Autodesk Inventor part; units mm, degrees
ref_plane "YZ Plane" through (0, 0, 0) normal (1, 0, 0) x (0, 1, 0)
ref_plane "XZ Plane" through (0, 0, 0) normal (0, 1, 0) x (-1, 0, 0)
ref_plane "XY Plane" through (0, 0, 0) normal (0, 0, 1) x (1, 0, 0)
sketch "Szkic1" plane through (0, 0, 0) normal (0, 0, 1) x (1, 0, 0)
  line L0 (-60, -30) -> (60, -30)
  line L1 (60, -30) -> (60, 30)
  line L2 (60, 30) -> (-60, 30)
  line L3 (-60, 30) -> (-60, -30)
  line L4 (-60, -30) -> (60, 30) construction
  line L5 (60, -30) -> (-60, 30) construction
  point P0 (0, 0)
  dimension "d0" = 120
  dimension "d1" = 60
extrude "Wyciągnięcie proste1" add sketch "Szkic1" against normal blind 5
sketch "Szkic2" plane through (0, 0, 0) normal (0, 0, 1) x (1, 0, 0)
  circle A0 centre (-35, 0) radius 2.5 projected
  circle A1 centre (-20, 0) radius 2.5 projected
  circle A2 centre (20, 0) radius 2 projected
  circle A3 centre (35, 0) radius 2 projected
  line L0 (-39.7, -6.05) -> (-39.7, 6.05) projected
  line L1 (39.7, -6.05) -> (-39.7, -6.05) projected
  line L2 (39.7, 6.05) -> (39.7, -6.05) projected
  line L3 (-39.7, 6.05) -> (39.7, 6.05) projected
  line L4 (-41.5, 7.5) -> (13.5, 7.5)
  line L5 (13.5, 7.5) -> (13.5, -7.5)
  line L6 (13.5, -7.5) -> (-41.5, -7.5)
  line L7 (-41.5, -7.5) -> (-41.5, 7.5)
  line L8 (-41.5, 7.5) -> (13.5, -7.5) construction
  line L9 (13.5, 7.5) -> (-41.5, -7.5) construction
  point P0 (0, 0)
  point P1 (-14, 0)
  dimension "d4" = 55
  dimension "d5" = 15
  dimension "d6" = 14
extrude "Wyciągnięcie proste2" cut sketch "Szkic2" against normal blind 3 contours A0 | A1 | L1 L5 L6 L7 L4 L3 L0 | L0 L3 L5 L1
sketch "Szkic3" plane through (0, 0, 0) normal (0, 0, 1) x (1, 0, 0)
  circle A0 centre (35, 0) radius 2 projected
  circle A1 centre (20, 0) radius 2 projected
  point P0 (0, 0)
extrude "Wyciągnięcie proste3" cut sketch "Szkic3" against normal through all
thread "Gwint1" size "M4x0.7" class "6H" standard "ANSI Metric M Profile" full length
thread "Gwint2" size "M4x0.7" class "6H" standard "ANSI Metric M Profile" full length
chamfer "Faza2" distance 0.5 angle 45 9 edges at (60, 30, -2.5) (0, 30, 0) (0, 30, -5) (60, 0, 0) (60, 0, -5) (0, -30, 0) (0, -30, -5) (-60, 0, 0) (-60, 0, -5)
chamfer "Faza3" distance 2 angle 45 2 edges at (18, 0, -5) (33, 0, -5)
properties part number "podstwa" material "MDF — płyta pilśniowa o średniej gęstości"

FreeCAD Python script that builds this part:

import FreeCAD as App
import Part
import Sketcher

V = App.Vector
Q = App.Units.Quantity


def edges_at(feature, points):
    """Names of the edges that pass closest to the given points."""
    edges = feature.Shape.Edges
    near = lambda p: min(range(len(edges)), key=lambda i: edges[i].distToShape(Part.Vertex(*p))[0])
    return sorted({f"Edge{near(p) + 1}" for p in points})

doc = App.newDocument("Part")
body = doc.addObject("PartDesign::Body", "Body")

# Sketch on XY plane
sketch1 = body.newObject("Sketcher::SketchObject", "Sketch")
sketch1.AttachmentSupport = (doc.getObject("XY_Plane"), [""])
sketch1.MapMode = "FlatFace"
sketch1.addGeometry([
    Part.LineSegment(V(-60, 30, 0), V(-60, -30, 0)),
    Part.LineSegment(V(-60, -30, 0), V(60, -30, 0)),
    Part.LineSegment(V(60, -30, 0), V(60, 30, 0)),
    Part.LineSegment(V(60, 30, 0), V(-60, 30, 0)),
], False)
sketch1.addConstraint([
    Sketcher.Constraint("Coincident", 0, 2, 1, 1),
    Sketcher.Constraint("Coincident", 1, 2, 2, 1),
    Sketcher.Constraint("Coincident", 2, 2, 3, 1),
    Sketcher.Constraint("Coincident", 3, 2, 0, 1),
    Sketcher.Constraint("Vertical", 0),
    Sketcher.Constraint("Horizontal", 1),
    Sketcher.Constraint("Vertical", 2),
    Sketcher.Constraint("Horizontal", 3),
    Sketcher.Constraint("Symmetric", 0, 2, 2, 2, -1, 1),
    Sketcher.Constraint("DistanceX", 1, 1, 1, 2, Q("120 mm")),
    Sketcher.Constraint("DistanceY", 0, 2, 0, 1, Q("60 mm")),
])
pad1 = body.newObject("PartDesign::Pad", "Pad")
pad1.Profile = sketch1
pad1.Length = 5
pad1.Reversed = True

# Sketch on XY plane
sketch2 = body.newObject("Sketcher::SketchObject", "Sketch001")
sketch2.AttachmentSupport = (doc.getObject("XY_Plane"), [""])
sketch2.MapMode = "FlatFace"
sketch2.addGeometry([
    Part.LineSegment(V(14, 8, 0), V(-42, 8, 0)),
    Part.LineSegment(V(-42, 8, 0), V(-42, -8, 0)),
    Part.LineSegment(V(-42, -8, 0), V(14, -8, 0)),
    Part.LineSegment(V(14, -8, 0), V(14, 8, 0)),
], False)
sketch2.addConstraint([
    Sketcher.Constraint("Coincident", 0, 2, 1, 1),
    Sketcher.Constraint("Coincident", 1, 2, 2, 1),
    Sketcher.Constraint("Coincident", 2, 2, 3, 1),
    Sketcher.Constraint("Coincident", 3, 2, 0, 1),
    Sketcher.Constraint("Horizontal", 0),
    Sketcher.Constraint("Vertical", 1),
    Sketcher.Constraint("Horizontal", 2),
    Sketcher.Constraint("Vertical", 3),
    Sketcher.Constraint("DistanceX", 0, 2, 0, 1, Q("55 mm")),
    Sketcher.Constraint("DistanceY", 1, 2, 1, 1, Q("15 mm")),
    Sketcher.Constraint("DistanceX", 0, 2, -1, 1, Q("41.5 mm")),
    Sketcher.Constraint("DistanceY", -1, 1, 0, 2, Q("7.5 mm")),
])
pocket1 = body.newObject("PartDesign::Pocket", "Pocket")
pocket1.Profile = sketch2
pocket1.Length = 3

# Sketch on XY plane
sketch3 = body.newObject("Sketcher::SketchObject", "Sketch002")
sketch3.AttachmentSupport = (doc.getObject("XY_Plane"), [""])
sketch3.MapMode = "FlatFace"
sketch3.addGeometry([
    Part.Circle(V(35, 0, 0), V(0, 0, 1), 2),
    Part.Circle(V(20, 0, 0), V(0, 0, 1), 2),
], False)
sketch3.addConstraint([
    Sketcher.Constraint("Equal", 0, 1),
    Sketcher.Constraint("PointOnObject", 0, 3, -1),
    Sketcher.Constraint("PointOnObject", 1, 3, -1),
    Sketcher.Constraint("Diameter", 0, Q("4 mm")),
    Sketcher.Constraint("DistanceX", -1, 1, 0, 3, Q("35 mm")),
    Sketcher.Constraint("DistanceX", -1, 1, 1, 3, Q("20 mm")),
])
pocket2 = body.newObject("PartDesign::Pocket", "Pocket001")
pocket2.Profile = sketch3
pocket2.Type = "ThroughAll"
doc.recompute()

chamfer = body.newObject("PartDesign::Chamfer", "Chamfer")
chamfer.Base = (pocket2, edges_at(pocket2, [
    (60, 30, -2.5),
    (0, 30, 0),
    (0, 30, -5),
    (60, 0, 0),
    (60, 0, -5),
    (0, -30, 0),
    (0, -30, -5),
    (-60, 0, 0),
    (-60, 0, -5),
]))
chamfer.Size = 0.5
doc.recompute()

chamfer2 = body.newObject("PartDesign::Chamfer", "Chamfer001")
chamfer2.Base = (chamfer, edges_at(chamfer, [(18, 0, -5), (33, 0, -5)]))
chamfer2.Size = 2

doc.recompute()
